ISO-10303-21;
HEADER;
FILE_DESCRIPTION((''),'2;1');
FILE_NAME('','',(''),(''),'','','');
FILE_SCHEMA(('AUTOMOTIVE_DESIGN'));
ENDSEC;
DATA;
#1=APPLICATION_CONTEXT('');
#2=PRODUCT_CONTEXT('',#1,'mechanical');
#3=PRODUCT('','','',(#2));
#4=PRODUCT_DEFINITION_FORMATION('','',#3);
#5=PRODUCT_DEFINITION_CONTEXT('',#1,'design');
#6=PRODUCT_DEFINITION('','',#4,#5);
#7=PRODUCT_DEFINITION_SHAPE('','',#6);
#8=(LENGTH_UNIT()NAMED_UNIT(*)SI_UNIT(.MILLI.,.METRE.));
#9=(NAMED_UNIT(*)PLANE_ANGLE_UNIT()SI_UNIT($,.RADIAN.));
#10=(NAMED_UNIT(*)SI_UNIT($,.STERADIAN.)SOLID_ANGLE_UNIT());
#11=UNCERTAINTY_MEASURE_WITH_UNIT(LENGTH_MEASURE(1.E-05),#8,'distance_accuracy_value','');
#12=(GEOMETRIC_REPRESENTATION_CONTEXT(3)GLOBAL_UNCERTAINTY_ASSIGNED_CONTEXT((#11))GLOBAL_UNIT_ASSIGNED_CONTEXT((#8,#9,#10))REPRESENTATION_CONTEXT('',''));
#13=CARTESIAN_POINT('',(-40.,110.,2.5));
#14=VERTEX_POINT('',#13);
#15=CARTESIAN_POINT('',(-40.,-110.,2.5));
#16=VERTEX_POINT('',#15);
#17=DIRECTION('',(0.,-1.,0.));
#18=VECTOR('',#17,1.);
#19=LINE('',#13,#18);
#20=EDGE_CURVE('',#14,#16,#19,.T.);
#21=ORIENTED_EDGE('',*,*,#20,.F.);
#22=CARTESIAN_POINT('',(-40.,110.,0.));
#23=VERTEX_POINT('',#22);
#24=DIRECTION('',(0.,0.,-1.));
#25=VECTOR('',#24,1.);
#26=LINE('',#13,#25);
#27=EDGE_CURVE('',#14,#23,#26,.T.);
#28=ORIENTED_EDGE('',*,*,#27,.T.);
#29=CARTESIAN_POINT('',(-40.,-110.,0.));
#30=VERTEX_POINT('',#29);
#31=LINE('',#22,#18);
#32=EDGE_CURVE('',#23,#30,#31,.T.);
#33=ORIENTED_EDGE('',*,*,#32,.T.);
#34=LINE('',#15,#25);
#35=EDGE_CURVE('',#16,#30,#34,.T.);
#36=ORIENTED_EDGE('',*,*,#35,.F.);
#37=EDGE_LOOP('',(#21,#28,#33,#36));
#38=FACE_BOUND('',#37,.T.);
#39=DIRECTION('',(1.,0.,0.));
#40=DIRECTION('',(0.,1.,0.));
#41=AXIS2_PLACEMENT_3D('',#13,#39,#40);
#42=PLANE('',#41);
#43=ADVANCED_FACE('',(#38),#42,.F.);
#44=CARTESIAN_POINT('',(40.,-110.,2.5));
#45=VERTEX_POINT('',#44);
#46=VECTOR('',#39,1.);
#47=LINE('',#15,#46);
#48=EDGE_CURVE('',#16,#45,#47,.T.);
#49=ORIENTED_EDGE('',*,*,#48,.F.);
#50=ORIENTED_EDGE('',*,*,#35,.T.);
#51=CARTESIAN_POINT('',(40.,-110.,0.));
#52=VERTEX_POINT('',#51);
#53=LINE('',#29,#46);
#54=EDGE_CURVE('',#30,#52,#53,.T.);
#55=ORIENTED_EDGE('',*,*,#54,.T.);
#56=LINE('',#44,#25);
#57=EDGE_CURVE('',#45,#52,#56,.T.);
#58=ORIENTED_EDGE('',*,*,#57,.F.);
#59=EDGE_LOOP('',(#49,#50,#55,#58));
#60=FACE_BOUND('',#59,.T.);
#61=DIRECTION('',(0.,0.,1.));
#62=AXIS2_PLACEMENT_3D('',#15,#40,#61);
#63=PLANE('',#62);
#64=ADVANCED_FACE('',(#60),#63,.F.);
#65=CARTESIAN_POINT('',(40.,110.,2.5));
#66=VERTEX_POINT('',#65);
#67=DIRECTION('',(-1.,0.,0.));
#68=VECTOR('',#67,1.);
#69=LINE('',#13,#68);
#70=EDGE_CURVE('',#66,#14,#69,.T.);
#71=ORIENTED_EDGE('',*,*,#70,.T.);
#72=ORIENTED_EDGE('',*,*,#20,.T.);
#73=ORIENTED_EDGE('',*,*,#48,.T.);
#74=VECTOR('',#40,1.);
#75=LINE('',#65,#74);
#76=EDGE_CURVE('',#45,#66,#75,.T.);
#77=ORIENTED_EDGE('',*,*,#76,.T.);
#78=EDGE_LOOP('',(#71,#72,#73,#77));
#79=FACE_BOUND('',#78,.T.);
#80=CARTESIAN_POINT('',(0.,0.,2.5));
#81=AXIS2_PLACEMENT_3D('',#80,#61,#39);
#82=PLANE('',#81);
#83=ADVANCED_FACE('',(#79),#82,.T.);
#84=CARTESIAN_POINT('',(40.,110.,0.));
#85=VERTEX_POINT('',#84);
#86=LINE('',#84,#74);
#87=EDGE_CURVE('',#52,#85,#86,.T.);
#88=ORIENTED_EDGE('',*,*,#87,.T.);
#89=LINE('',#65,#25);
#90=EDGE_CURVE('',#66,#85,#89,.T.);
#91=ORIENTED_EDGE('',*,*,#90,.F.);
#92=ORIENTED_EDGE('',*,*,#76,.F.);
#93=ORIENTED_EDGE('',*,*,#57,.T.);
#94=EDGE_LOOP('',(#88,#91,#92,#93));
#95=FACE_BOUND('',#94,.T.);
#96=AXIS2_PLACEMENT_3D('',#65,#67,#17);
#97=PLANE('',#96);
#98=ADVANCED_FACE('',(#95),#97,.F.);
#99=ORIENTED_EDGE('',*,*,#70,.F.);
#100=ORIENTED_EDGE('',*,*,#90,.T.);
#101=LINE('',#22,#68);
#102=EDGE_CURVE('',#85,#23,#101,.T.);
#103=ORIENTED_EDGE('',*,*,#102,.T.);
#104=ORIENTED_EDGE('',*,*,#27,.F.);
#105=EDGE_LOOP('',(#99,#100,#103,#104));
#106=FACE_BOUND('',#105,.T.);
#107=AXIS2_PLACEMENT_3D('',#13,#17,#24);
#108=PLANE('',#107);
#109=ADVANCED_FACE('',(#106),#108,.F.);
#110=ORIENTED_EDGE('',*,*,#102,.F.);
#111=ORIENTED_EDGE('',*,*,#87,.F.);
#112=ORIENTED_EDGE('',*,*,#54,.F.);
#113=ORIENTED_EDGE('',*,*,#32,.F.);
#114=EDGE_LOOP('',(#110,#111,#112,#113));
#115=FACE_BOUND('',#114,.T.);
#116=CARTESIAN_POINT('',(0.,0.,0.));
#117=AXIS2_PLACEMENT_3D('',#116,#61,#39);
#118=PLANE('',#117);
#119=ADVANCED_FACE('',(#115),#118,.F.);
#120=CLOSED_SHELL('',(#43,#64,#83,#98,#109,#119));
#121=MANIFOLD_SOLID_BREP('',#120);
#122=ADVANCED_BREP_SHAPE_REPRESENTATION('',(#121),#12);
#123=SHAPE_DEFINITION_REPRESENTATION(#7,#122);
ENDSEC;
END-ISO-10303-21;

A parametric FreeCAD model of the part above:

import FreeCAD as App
import Part
import Sketcher
from FreeCAD import Vector
Q = App.Units.Quantity


def add_polygon(sketch, points):
    """Adds a closed chain of lines whose ends are joined by coincident constraints."""
    first, n = sketch.GeometryCount, len(points)
    for a, b in zip(points, points[1:] + points[:1]):
        sketch.addGeometry(Part.LineSegment(App.Vector(*a, 0), App.Vector(*b, 0)), False)
    for i in range(n):
        sketch.addConstraint(Sketcher.Constraint("Coincident", first + i, 2, first + (i + 1) % n, 1))

doc = App.newDocument("Part")
body = doc.addObject("PartDesign::Body", "Body")

sketch1 = body.newObject("Sketcher::SketchObject", "Sketch")
sketch1.AttachmentSupport = (doc.getObject("XY_Plane"), [""])
sketch1.MapMode = "FlatFace"
add_polygon(sketch1, [(-40, 110), (-40, -110), (40, -110), (40, 110)])
sketch1.addConstraint([
    Sketcher.Constraint("Vertical", 0),
    Sketcher.Constraint("Horizontal", 1),
    Sketcher.Constraint("Vertical", 2),
    Sketcher.Constraint("Horizontal", 3),
    Sketcher.Constraint("Symmetric", 0, 2, 2, 2, -1, 1),
    Sketcher.Constraint("DistanceX", 1, 1, 1, 2, Q("80 mm")),
    Sketcher.Constraint("DistanceY", 0, 2, 0, 1, Q("220 mm")),
])
pad1 = body.newObject("PartDesign::Pad", "Pad")
pad1.Profile = sketch1
pad1.Length = 2.5

doc.recompute()
